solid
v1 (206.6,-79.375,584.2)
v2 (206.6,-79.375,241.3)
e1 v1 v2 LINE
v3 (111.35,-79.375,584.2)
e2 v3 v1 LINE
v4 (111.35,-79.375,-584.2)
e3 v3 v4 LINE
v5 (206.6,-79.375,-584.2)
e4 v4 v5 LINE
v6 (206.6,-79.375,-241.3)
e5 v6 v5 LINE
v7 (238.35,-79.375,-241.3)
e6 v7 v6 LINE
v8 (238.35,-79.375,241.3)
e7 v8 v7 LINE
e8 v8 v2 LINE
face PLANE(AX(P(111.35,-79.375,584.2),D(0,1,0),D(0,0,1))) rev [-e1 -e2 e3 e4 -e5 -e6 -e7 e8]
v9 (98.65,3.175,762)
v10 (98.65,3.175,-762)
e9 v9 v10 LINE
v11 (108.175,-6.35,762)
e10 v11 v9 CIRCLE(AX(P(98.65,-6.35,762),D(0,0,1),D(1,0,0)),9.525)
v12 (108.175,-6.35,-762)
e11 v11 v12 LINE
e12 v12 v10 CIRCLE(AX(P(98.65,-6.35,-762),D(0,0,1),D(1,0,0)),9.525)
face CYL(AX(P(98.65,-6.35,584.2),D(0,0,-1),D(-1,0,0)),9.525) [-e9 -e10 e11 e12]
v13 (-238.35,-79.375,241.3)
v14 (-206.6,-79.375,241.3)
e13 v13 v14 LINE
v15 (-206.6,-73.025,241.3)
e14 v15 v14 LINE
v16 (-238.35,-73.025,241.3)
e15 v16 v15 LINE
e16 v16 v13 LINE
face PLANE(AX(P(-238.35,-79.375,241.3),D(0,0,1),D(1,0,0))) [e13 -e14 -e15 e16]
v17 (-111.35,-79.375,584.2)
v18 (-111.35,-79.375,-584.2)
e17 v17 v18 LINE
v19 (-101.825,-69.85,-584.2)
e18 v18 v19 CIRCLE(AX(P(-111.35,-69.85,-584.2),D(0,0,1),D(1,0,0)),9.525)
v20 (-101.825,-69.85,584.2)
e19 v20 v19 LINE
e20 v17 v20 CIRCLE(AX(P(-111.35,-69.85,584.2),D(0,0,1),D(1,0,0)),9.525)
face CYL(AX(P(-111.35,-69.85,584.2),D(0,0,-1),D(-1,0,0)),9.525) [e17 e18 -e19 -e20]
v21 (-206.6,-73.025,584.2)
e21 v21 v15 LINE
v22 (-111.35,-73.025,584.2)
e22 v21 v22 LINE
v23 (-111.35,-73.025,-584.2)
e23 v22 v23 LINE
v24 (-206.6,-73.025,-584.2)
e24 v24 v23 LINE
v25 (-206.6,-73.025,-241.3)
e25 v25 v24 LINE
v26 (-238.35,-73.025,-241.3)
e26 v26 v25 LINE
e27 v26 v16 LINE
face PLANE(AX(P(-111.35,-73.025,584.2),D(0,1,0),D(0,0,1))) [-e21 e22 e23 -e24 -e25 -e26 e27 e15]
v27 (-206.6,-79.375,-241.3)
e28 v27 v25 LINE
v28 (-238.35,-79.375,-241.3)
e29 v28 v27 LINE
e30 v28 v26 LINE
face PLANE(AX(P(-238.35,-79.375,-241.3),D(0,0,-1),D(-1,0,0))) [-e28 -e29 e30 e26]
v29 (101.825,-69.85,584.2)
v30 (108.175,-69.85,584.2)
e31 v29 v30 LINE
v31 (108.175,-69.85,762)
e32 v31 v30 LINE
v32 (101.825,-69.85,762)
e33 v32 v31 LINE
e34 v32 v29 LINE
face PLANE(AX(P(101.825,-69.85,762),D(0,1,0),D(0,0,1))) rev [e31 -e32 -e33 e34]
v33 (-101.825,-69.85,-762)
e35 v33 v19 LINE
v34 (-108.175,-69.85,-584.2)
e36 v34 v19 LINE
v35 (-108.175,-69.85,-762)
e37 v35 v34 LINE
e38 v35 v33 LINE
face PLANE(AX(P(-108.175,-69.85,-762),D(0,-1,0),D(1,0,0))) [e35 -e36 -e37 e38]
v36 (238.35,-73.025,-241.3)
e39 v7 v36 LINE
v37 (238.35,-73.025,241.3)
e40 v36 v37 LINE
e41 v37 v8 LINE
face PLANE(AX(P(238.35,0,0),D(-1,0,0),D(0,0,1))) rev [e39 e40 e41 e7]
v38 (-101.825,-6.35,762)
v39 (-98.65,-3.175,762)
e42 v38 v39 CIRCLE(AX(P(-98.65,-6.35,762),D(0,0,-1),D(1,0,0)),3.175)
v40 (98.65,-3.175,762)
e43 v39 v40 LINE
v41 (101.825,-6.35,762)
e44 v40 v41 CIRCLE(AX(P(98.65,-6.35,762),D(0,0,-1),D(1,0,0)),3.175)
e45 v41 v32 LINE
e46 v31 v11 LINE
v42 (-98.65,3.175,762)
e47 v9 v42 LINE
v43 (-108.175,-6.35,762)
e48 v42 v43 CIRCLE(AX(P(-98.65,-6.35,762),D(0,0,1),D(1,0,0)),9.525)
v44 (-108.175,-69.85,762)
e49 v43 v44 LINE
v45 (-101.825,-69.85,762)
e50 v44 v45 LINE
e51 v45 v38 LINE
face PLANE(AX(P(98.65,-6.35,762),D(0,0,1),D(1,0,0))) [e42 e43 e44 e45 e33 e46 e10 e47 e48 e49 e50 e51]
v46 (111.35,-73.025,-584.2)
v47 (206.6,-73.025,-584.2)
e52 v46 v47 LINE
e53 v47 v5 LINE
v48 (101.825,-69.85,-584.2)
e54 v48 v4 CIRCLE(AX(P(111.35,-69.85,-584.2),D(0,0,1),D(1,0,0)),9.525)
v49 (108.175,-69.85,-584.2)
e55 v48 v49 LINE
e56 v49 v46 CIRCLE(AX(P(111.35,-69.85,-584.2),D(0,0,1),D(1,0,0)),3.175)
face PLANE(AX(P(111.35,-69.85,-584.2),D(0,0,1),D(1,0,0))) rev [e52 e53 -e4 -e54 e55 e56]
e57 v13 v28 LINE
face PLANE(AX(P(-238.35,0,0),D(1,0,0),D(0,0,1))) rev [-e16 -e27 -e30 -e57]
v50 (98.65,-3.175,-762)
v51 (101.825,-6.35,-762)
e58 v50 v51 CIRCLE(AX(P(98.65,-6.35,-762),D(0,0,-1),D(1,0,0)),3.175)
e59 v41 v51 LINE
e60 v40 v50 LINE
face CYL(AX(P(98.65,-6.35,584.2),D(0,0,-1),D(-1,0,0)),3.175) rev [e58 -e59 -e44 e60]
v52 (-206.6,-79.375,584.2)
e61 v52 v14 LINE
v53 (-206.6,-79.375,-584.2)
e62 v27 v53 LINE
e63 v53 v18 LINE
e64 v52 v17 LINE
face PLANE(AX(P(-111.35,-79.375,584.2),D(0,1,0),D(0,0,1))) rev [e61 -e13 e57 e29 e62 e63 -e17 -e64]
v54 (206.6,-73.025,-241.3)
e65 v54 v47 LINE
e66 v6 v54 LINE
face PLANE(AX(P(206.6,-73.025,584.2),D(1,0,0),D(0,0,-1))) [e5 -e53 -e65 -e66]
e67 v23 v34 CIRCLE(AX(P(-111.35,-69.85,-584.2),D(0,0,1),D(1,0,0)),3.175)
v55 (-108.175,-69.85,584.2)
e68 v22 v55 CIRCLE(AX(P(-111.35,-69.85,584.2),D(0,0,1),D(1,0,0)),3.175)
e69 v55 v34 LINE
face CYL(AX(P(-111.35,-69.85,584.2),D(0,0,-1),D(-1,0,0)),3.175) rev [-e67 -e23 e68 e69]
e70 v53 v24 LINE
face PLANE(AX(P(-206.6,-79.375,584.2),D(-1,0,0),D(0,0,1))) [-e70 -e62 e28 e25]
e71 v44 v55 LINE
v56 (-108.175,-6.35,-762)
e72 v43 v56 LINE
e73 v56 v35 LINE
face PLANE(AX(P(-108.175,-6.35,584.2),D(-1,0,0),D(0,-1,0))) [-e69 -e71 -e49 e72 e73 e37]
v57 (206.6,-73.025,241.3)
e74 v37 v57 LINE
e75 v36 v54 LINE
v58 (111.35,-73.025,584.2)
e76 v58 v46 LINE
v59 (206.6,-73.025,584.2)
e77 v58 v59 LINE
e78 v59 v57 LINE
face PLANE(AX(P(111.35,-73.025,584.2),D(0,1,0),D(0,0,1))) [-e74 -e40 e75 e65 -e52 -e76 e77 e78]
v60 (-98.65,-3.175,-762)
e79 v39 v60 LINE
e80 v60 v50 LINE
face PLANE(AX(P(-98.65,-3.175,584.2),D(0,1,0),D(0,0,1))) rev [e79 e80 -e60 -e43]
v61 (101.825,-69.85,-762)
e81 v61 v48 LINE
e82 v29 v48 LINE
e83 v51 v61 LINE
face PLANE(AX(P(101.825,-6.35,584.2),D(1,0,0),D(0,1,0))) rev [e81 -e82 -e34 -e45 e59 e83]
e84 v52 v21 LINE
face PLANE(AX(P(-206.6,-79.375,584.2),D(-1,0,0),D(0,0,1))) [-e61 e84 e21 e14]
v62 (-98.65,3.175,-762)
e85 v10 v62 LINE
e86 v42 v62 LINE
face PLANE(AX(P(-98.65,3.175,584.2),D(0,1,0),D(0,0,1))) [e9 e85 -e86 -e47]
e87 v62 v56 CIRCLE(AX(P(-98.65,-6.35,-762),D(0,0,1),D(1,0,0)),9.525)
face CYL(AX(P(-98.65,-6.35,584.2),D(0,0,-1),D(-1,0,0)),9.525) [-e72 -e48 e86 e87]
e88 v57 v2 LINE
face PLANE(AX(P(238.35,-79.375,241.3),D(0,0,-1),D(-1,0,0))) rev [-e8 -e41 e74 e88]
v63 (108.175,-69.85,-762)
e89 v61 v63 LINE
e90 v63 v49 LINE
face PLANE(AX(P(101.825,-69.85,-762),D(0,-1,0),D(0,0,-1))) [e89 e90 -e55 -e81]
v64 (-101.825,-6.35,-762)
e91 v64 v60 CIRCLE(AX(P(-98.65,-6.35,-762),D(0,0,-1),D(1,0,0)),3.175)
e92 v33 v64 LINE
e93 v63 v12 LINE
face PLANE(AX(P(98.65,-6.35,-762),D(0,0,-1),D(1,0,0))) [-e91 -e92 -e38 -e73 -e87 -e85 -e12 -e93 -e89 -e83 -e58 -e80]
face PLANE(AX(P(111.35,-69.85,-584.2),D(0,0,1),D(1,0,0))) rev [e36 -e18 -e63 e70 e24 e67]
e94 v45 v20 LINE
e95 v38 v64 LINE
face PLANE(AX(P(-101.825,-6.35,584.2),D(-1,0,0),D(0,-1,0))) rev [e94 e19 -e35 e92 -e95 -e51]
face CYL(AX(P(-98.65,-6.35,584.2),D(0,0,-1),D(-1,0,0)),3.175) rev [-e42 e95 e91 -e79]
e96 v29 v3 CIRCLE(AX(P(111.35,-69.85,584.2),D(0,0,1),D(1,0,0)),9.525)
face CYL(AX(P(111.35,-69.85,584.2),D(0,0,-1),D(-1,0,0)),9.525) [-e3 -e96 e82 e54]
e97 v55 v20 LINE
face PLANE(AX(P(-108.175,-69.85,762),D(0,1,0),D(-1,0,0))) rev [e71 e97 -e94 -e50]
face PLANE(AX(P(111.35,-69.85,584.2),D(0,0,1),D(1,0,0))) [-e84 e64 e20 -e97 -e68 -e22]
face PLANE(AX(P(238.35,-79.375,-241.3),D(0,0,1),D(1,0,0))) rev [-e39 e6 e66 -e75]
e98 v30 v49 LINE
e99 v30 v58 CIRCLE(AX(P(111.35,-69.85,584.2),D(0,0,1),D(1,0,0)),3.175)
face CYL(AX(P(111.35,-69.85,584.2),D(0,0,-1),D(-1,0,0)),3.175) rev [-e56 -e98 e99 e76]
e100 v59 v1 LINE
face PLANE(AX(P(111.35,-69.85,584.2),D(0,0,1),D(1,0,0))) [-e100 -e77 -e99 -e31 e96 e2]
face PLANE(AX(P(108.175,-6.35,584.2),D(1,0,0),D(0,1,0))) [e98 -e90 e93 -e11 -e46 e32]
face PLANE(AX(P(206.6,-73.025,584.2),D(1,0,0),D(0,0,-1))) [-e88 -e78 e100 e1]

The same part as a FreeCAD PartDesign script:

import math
import FreeCAD as App
import Part
import Sketcher

V = App.Vector
Q = App.Units.Quantity


def add_polygon(sketch, points):
    """Adds a closed chain of lines whose ends are joined by coincident constraints."""
    first, n = sketch.GeometryCount, len(points)
    for a, b in zip(points, points[1:] + points[:1]):
        sketch.addGeometry(Part.LineSegment(App.Vector(*a, 0), App.Vector(*b, 0)), False)
    for i in range(n):
        sketch.addConstraint(Sketcher.Constraint("Coincident", first + i, 2, first + (i + 1) % n, 1))

doc = App.newDocument("Part")
params = doc.addObject("Spreadsheet::Sheet", "Params")
for row, (alias, value) in enumerate([
    ("sketch1_height", "2.5 in"),
    ("sketch1_radius", "0.375 in"),
    ("sketch1_radius2", "0.125 in"),
    ("sketch1_width", "3.75 in"),
    ("pad1_length", "46 in"),
    ("sketch2_height", "2.5 in"),
    ("sketch2_radius", "0.125 in"),
    ("sketch2_radius2", "0.375 in"),
    ("pad2_length", "7 in"),
    ("sketch3_height", "19 in"),
    ("sketch3_width", "0.25 in"),
    ("pad3_length", "1.25 in"),
], start=1):
    params.set(f"A{row}", alias)
    params.set(f"B{row}", "=" + value)
    params.setAlias(f"B{row}", alias)

body = doc.addObject("PartDesign::Body", "Body")

sketch1 = doc.addObject("Sketcher::SketchObject", "Sketch")
body.addObject(sketch1)
sketch1.AttachmentSupport = (doc.XY_Plane, [""])
sketch1.MapMode = "FlatFace"
sketch1.addGeometry([
    Part.LineSegment(V(-206.6, -79.4, 0), V(-111.3, -79.4, 0)),
    Part.ArcOfCircle(Part.Circle(V(-111.3, -69.9, 0), V(0, 0, 1), 9.5), math.radians(-90), math.radians(0)),
    Part.LineSegment(V(-101.8, -69.8, 0), V(-101.8, -6.3, 0)),
    Part.ArcOfCircle(Part.Circle(V(-98.6, -6.4, 0), V(0, 0, 1), 3.2), math.radians(90), math.radians(180)),
    Part.LineSegment(V(-98.7, -3.2, 0), V(98.7, -3.2, 0)),
    Part.ArcOfCircle(Part.Circle(V(98.6, -6.4, 0), V(0, 0, 1), 3.2), math.radians(0), math.radians(90)),
    Part.LineSegment(V(101.8, -6.3, 0), V(101.8, -69.8, 0)),
    Part.ArcOfCircle(Part.Circle(V(111.3, -69.9, 0), V(0, 0, 1), 9.5), math.radians(180), math.radians(270)),
    Part.LineSegment(V(111.3, -79.4, 0), V(206.6, -79.4, 0)),
    Part.LineSegment(V(206.6, -79.4, 0), V(206.6, -73, 0)),
    Part.LineSegment(V(206.6, -73, 0), V(111.3, -73, 0)),
    Part.ArcOfCircle(Part.Circle(V(111.4, -69.8, 0), V(0, 0, 1), 3.2), math.radians(-180), math.radians(-90)),
    Part.LineSegment(V(108.2, -69.8, 0), V(108.2, -6.3, 0)),
    Part.ArcOfCircle(Part.Circle(V(98.7, -6.3, 0), V(0, 0, 1), 9.5), math.radians(0), math.radians(90)),
    Part.LineSegment(V(98.7, 3.2, 0), V(-98.7, 3.2, 0)),
    Part.ArcOfCircle(Part.Circle(V(-98.7, -6.3, 0), V(0, 0, 1), 9.5), math.radians(90), math.radians(180)),
    Part.LineSegment(V(-108.2, -6.3, 0), V(-108.2, -69.8, 0)),
    Part.ArcOfCircle(Part.Circle(V(-111.4, -69.8, 0), V(0, 0, 1), 3.2), math.radians(-90), math.radians(0)),
    Part.LineSegment(V(-111.3, -73, 0), V(-206.6, -73, 0)),
    Part.LineSegment(V(-206.6, -73, 0), V(-206.6, -79.4, 0)),
], False)
sketch1.addConstraint([
    Sketcher.Constraint("Tangent", 0, 2, 1, 1),
    Sketcher.Constraint("Tangent", 1, 2, 2, 1),
    Sketcher.Constraint("Tangent", 2, 2, 3, 2),
    Sketcher.Constraint("Tangent", 3, 1, 4, 1),
    Sketcher.Constraint("Tangent", 4, 2, 5, 2),
    Sketcher.Constraint("Tangent", 5, 1, 6, 1),
    Sketcher.Constraint("Tangent", 6, 2, 7, 1),
    Sketcher.Constraint("Tangent", 7, 2, 8, 1),
    Sketcher.Constraint("Coincident", 8, 2, 9, 1),
    Sketcher.Constraint("Coincident", 9, 2, 10, 1),
    Sketcher.Constraint("Tangent", 10, 2, 11, 2),
    Sketcher.Constraint("Tangent", 11, 1, 12, 1),
    Sketcher.Constraint("Tangent", 12, 2, 13, 1),
    Sketcher.Constraint("Tangent", 13, 2, 14, 1),
    Sketcher.Constraint("Tangent", 14, 2, 15, 1),
    Sketcher.Constraint("Tangent", 15, 2, 16, 1),
    Sketcher.Constraint("Tangent", 16, 2, 17, 2),
    Sketcher.Constraint("Tangent", 17, 1, 18, 1),
    Sketcher.Constraint("Coincident", 18, 2, 19, 1),
    Sketcher.Constraint("Coincident", 19, 2, 0, 1),
    Sketcher.Constraint("Horizontal", 0),
    Sketcher.Constraint("Vertical", 2),
    Sketcher.Constraint("Horizontal", 4),
    Sketcher.Constraint("Vertical", 6),
    Sketcher.Constraint("Horizontal", 8),
    Sketcher.Constraint("Vertical", 9),
    Sketcher.Constraint("Horizontal", 10),
    Sketcher.Constraint("Vertical", 12),
    Sketcher.Constraint("Horizontal", 14),
    Sketcher.Constraint("Vertical", 16),
    Sketcher.Constraint("Horizontal", 18),
    Sketcher.Constraint("Vertical", 19),
    Sketcher.Constraint("Coincident", 11, 3, 7, 3),
    Sketcher.Constraint("Coincident", 13, 3, 5, 3),
    Sketcher.Constraint("Coincident", 15, 3, 3, 3),
    Sketcher.Constraint("Coincident", 17, 3, 1, 3),
    Sketcher.Constraint("Equal", 3, 5),
    Sketcher.Constraint("Equal", 1, 7),
    Sketcher.Constraint("Equal", 5, 11),
    Sketcher.Constraint("Symmetric", 3, 1, 13, 2, -1, 1),
    Sketcher.Constraint("Symmetric", 9, 2, 18, 2, -2),
    Sketcher.Constraint("DistanceY", 2, 1, 2, 2, Q("2.5 in")),
    Sketcher.Constraint("Radius", 1, Q("0.375 in")),
    Sketcher.Constraint("Radius", 3, Q("0.125 in")),
    Sketcher.Constraint("DistanceX", 0, 1, 0, 2, Q("3.75 in")),
    Sketcher.Constraint("DistanceX", 4, 1, 4, 2, 197.3),
])
sketch1.setExpression("Constraints[41]", "Params.sketch1_height")
sketch1.setExpression("Constraints[42]", "Params.sketch1_radius")
sketch1.setExpression("Constraints[43]", "Params.sketch1_radius2")
sketch1.setExpression("Constraints[44]", "Params.sketch1_width")
pad1 = doc.addObject("PartDesign::Pad", "Pad")
body.addObject(pad1)
pad1.Profile = sketch1
pad1.setExpression("Length", "Params.pad1_length")
pad1.Midplane = True

sketch2 = doc.addObject("Sketcher::SketchObject", "Sketch001")
body.addObject(sketch2)
sketch2.AttachmentSupport = (doc.XY_Plane, [""])
sketch2.MapMode = "FlatFace"
sketch2.AttachmentOffset = App.Placement(V(0, 0, 30 * 25.4), App.Rotation())
sketch2.addGeometry([
    Part.LineSegment(V(-108.2, -69.8, 0), V(-101.8, -69.8, 0)),
    Part.LineSegment(V(-101.8, -69.8, 0), V(-101.8, -6.3, 0)),
    Part.ArcOfCircle(Part.Circle(V(-98.6, -6.4, 0), V(0, 0, 1), 3.2), math.radians(90), math.radians(180)),
    Part.LineSegment(V(-98.7, -3.2, 0), V(98.7, -3.2, 0)),
    Part.ArcOfCircle(Part.Circle(V(98.6, -6.4, 0), V(0, 0, 1), 3.2), math.radians(0), math.radians(90)),
    Part.LineSegment(V(101.8, -6.3, 0), V(101.8, -69.8, 0)),
    Part.LineSegment(V(101.8, -69.8, 0), V(108.2, -69.8, 0)),
    Part.LineSegment(V(108.2, -69.8, 0), V(108.2, -6.3, 0)),
    Part.ArcOfCircle(Part.Circle(V(98.7, -6.3, 0), V(0, 0, 1), 9.5), math.radians(0), math.radians(90)),
    Part.LineSegment(V(98.7, 3.2, 0), V(-98.7, 3.2, 0)),
    Part.ArcOfCircle(Part.Circle(V(-98.7, -6.3, 0), V(0, 0, 1), 9.5), math.radians(90), math.radians(180)),
    Part.LineSegment(V(-108.2, -6.3, 0), V(-108.2, -69.8, 0)),
], False)
sketch2.addConstraint([
    Sketcher.Constraint("Coincident", 0, 2, 1, 1),
    Sketcher.Constraint("Tangent", 1, 2, 2, 2),
    Sketcher.Constraint("Tangent", 2, 1, 3, 1),
    Sketcher.Constraint("Tangent", 3, 2, 4, 2),
    Sketcher.Constraint("Tangent", 4, 1, 5, 1),
    Sketcher.Constraint("Coincident", 5, 2, 6, 1),
    Sketcher.Constraint("Coincident", 6, 2, 7, 1),
    Sketcher.Constraint("Tangent", 7, 2, 8, 1),
    Sketcher.Constraint("Tangent", 8, 2, 9, 1),
    Sketcher.Constraint("Tangent", 9, 2, 10, 1),
    Sketcher.Constraint("Tangent", 10, 2, 11, 1),
    Sketcher.Constraint("Coincident", 11, 2, 0, 1),
    Sketcher.Constraint("Horizontal", 0),
    Sketcher.Constraint("Vertical", 1),
    Sketcher.Constraint("Horizontal", 3),
    Sketcher.Constraint("Vertical", 5),
    Sketcher.Constraint("Horizontal", 6),
    Sketcher.Constraint("Vertical", 7),
    Sketcher.Constraint("Horizontal", 9),
    Sketcher.Constraint("Vertical", 11),
    Sketcher.Constraint("Coincident", 8, 3, 4, 3),
    Sketcher.Constraint("Coincident", 10, 3, 2, 3),
    Sketcher.Constraint("Equal", 2, 4),
    Sketcher.Constraint("Symmetric", 2, 1, 8, 2, -1, 1),
    Sketcher.Constraint("Horizontal", 0, 2, 5, 2),
    Sketcher.Constraint("DistanceY", 1, 1, 1, 2, Q("2.5 in")),
    Sketcher.Constraint("Radius", 2, Q("0.125 in")),
    Sketcher.Constraint("Radius", 8, Q("0.375 in")),
    Sketcher.Constraint("DistanceX", 3, 1, 3, 2, 197.3),
])
sketch2.setExpression("Constraints[25]", "Params.sketch2_height")
sketch2.setExpression("Constraints[26]", "Params.sketch2_radius")
sketch2.setExpression("Constraints[27]", "Params.sketch2_radius2")
pad2 = doc.addObject("PartDesign::Pad", "Pad001")
body.addObject(pad2)
pad2.Profile = sketch2
pad2.setExpression("Length", "Params.pad2_length")
pad2.Reversed = True

sketch3 = doc.addObject("Sketcher::SketchObject", "Sketch002")
body.addObject(sketch3)
sketch3.AttachmentSupport = (doc.YZ_Plane, [""])
sketch3.MapMode = "FlatFace"
sketch3.AttachmentOffset = App.Placement(V(0, 0, 206.6), App.Rotation())
add_polygon(sketch3, [(-73, 241), (-79, 241), (-79, -241), (-73, -241)])
sketch3.addConstraint([
    Sketcher.Constraint("Horizontal", 0),
    Sketcher.Constraint("Vertical", 1),
    Sketcher.Constraint("Horizontal", 2),
    Sketcher.Constraint("Vertical", 3),
    Sketcher.Constraint("DistanceY", 1, 2, 1, 1, Q("19 in")),
    Sketcher.Constraint("DistanceX", 0, 2, 0, 1, Q("0.25 in")),
    Sketcher.Constraint("DistanceY", -1, 1, 0, 2, Q("9.5 in")),
    Sketcher.Constraint("DistanceX", 0, 2, -1, 1, Q("3.125 in")),
])
sketch3.setExpression("Constraints[8]", "Params.sketch3_height")
sketch3.setExpression("Constraints[9]", "Params.sketch3_width")
pad3 = doc.addObject("PartDesign::Pad", "Pad002")
body.addObject(pad3)
pad3.Profile = sketch3
pad3.setExpression("Length", "Params.pad3_length")
doc.recompute()

mirrored = doc.addObject("PartDesign::Mirrored", "Mirrored")
body.addObject(mirrored)
mirrored.Originals = [pad2]
mirrored.MirrorPlane = (doc.XY_Plane, [""])
body.Tip = mirrored
doc.recompute()

mirrored2 = doc.addObject("PartDesign::Mirrored", "Mirrored001")
body.addObject(mirrored2)
mirrored2.Originals = [pad3]
mirrored2.MirrorPlane = (doc.YZ_Plane, [""])
body.Tip = mirrored2

doc.recompute()
